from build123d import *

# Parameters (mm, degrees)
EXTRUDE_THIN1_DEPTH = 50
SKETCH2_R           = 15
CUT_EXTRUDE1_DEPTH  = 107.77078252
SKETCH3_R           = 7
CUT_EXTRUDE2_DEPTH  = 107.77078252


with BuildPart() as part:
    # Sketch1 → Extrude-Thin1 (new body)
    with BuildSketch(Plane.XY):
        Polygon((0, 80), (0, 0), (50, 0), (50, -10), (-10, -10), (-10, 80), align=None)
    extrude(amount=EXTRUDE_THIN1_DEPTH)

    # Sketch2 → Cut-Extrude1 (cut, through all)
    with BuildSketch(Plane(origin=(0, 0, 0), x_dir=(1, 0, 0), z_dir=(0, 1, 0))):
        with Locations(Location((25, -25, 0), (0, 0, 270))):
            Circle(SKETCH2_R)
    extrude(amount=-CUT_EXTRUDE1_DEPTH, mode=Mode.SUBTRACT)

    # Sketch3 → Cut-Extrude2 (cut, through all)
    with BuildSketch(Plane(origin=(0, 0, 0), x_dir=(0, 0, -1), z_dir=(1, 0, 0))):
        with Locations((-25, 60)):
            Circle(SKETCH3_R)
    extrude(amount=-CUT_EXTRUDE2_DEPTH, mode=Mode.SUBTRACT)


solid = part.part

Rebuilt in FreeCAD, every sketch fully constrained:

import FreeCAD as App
import Part
import Sketcher


def add_polygon(sketch, points):
    """Adds a closed chain of lines whose ends are joined by coincident constraints."""
    first, n = sketch.GeometryCount, len(points)
    for a, b in zip(points, points[1:] + points[:1]):
        sketch.addGeometry(Part.LineSegment(App.Vector(*a, 0), App.Vector(*b, 0)), False)
    for i in range(n):
        sketch.addConstraint(Sketcher.Constraint("Coincident", first + i, 2, first + (i + 1) % n, 1))

doc = App.newDocument("Part")
body = doc.addObject("PartDesign::Body", "Body")

# Sketch on XY plane
sketch1 = body.newObject("Sketcher::SketchObject", "Sketch")
sketch1.AttachmentSupport = (doc.getObject("XY_Plane"), [""])
sketch1.MapMode = "FlatFace"
add_polygon(sketch1, [(0, 0), (0, 80), (-10, 80), (-10, -10), (50, -10), (50, 0)])  # lines 0-5
sketch1.addConstraint([
    Sketcher.Constraint("Vertical", 0),
    Sketcher.Constraint("Horizontal", 1),
    Sketcher.Constraint("Vertical", 2),
    Sketcher.Constraint("Horizontal", 3),
    Sketcher.Constraint("Vertical", 4),
    Sketcher.Constraint("Horizontal", 5),
    Sketcher.Constraint("Coincident", 5, 2, -1, 1),
    Sketcher.Constraint("Equal", 1, 4),
    Sketcher.Constraint("DistanceX", 1, 2, 1, 1, 10.0),
    Sketcher.Constraint("DistanceX", 3, 1, 3, 2, 60.0),
    Sketcher.Constraint("DistanceY", 0, 1, 0, 2, 80.0),
])
pad1 = body.newObject("PartDesign::Pad", "Pad")
pad1.Profile = sketch1
pad1.Length = 50

# Sketch on XZ plane
sketch2 = body.newObject("Sketcher::SketchObject", "Sketch001")
sketch2.AttachmentSupport = (doc.getObject("XZ_Plane"), [""])
sketch2.MapMode = "FlatFace"
sketch2.addGeometry(Part.Circle(App.Vector(25, 25, 0), App.Vector(0, 0, 1), 15), False)
sketch2.addConstraint([
    Sketcher.Constraint("Diameter", 0, 30.0),
    Sketcher.Constraint("DistanceX", -1, 1, 0, 3, 25.0),
    Sketcher.Constraint("DistanceY", -1, 1, 0, 3, 25.0),
])
pocket1 = body.newObject("PartDesign::Pocket", "Pocket")
pocket1.Profile = sketch2
pocket1.Type = "ThroughAll"
pocket1.Reversed = True

# Sketch on YZ plane
sketch3 = body.newObject("Sketcher::SketchObject", "Sketch002")
sketch3.AttachmentSupport = (doc.getObject("YZ_Plane"), [""])
sketch3.MapMode = "FlatFace"
sketch3.addGeometry(Part.Circle(App.Vector(60, 25, 0), App.Vector(0, 0, 1), 7), False)
sketch3.addConstraint([
    Sketcher.Constraint("Diameter", 0, 14.0),
    Sketcher.Constraint("DistanceX", -1, 1, 0, 3, 60.0),
    Sketcher.Constraint("DistanceY", -1, 1, 0, 3, 25.0),
])
pocket2 = body.newObject("PartDesign::Pocket", "Pocket001")
pocket2.Profile = sketch3
pocket2.Type = "ThroughAll"

doc.recompute()
